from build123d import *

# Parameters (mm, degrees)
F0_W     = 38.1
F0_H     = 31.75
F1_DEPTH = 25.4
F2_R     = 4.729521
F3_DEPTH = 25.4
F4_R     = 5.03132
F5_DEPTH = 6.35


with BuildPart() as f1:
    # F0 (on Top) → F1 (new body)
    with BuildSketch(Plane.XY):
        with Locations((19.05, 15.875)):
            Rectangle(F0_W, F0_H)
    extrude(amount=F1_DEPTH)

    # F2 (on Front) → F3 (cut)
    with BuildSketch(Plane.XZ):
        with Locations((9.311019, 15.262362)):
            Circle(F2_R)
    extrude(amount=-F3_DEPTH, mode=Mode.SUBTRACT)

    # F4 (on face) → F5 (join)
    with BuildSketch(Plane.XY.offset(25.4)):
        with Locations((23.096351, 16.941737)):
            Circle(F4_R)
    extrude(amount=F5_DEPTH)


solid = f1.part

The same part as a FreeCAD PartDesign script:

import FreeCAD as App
import Part
import Sketcher
from FreeCAD import Vector
Q = App.Units.Quantity

doc = App.newDocument("Part")
body = doc.addObject("PartDesign::Body", "Body")

sketch1 = body.newObject("Sketcher::SketchObject", "Sketch")
sketch1.AttachmentSupport = (doc.getObject("XY_Plane"), [""])
sketch1.MapMode = "FlatFace"
sketch1.addGeometry([
    Part.LineSegment(Vector(0, 32, 0), Vector(0, 0, 0)),
    Part.LineSegment(Vector(0, 0, 0), Vector(38, 0, 0)),
    Part.LineSegment(Vector(38, 0, 0), Vector(38, 32, 0)),
    Part.LineSegment(Vector(38, 32, 0), Vector(0, 32, 0)),
], False)
sketch1.addConstraint([
    Sketcher.Constraint("Coincident", 0, 2, 1, 1),
    Sketcher.Constraint("Coincident", 1, 2, 2, 1),
    Sketcher.Constraint("Coincident", 2, 2, 3, 1),
    Sketcher.Constraint("Coincident", 3, 2, 0, 1),
    Sketcher.Constraint("Vertical", 0),
    Sketcher.Constraint("Horizontal", 1),
    Sketcher.Constraint("Vertical", 2),
    Sketcher.Constraint("Horizontal", 3),
    Sketcher.Constraint("Coincident", 0, 2, -1, 1),
    Sketcher.Constraint("DistanceX", 1, 1, 1, 2, Q("1.5 in")),
    Sketcher.Constraint("DistanceY", 0, 2, 0, 1, Q("1.25 in")),
])
pad1 = body.newObject("PartDesign::Pad", "Pad")
pad1.Profile = sketch1
pad1.Length = Q("1 in")

sketch2 = body.newObject("Sketcher::SketchObject", "Sketch001")
sketch2.AttachmentSupport = (doc.getObject("XZ_Plane"), [""])
sketch2.MapMode = "FlatFace"
sketch2.addGeometry(Part.Circle(Vector(9.3, 15.3, 0), Vector(0, 0, 1), 4.7), False)
sketch2.addConstraint([
    Sketcher.Constraint("Diameter", 0, Q("9.459042 mm")),
    Sketcher.Constraint("DistanceX", -1, 1, 0, 3, Q("9.311019 mm")),
    Sketcher.Constraint("DistanceY", -1, 1, 0, 3, Q("15.262362 mm")),
])
pocket1 = body.newObject("PartDesign::Pocket", "Pocket")
pocket1.Profile = sketch2
pocket1.Length = Q("1 in")

sketch3 = body.newObject("Sketcher::SketchObject", "Sketch002")
sketch3.AttachmentSupport = (doc.getObject("XY_Plane"), [""])
sketch3.MapMode = "FlatFace"
sketch3.AttachmentOffset = App.Placement(Vector(0, 0, 1 * 25.4), App.Rotation())
sketch3.addGeometry(Part.Circle(Vector(23, 17, 0), Vector(0, 0, 1), 5), False)
sketch3.addConstraint([
    Sketcher.Constraint("Diameter", 0, Q("10.06264 mm")),
    Sketcher.Constraint("DistanceX", -1, 1, 0, 3, Q("23.096351 mm")),
    Sketcher.Constraint("DistanceY", -1, 1, 0, 3, Q("16.941737 mm")),
])
pad2 = body.newObject("PartDesign::Pad", "Pad001")
pad2.Profile = sketch3
pad2.Length = Q("0.25 in")

doc.recompute()
